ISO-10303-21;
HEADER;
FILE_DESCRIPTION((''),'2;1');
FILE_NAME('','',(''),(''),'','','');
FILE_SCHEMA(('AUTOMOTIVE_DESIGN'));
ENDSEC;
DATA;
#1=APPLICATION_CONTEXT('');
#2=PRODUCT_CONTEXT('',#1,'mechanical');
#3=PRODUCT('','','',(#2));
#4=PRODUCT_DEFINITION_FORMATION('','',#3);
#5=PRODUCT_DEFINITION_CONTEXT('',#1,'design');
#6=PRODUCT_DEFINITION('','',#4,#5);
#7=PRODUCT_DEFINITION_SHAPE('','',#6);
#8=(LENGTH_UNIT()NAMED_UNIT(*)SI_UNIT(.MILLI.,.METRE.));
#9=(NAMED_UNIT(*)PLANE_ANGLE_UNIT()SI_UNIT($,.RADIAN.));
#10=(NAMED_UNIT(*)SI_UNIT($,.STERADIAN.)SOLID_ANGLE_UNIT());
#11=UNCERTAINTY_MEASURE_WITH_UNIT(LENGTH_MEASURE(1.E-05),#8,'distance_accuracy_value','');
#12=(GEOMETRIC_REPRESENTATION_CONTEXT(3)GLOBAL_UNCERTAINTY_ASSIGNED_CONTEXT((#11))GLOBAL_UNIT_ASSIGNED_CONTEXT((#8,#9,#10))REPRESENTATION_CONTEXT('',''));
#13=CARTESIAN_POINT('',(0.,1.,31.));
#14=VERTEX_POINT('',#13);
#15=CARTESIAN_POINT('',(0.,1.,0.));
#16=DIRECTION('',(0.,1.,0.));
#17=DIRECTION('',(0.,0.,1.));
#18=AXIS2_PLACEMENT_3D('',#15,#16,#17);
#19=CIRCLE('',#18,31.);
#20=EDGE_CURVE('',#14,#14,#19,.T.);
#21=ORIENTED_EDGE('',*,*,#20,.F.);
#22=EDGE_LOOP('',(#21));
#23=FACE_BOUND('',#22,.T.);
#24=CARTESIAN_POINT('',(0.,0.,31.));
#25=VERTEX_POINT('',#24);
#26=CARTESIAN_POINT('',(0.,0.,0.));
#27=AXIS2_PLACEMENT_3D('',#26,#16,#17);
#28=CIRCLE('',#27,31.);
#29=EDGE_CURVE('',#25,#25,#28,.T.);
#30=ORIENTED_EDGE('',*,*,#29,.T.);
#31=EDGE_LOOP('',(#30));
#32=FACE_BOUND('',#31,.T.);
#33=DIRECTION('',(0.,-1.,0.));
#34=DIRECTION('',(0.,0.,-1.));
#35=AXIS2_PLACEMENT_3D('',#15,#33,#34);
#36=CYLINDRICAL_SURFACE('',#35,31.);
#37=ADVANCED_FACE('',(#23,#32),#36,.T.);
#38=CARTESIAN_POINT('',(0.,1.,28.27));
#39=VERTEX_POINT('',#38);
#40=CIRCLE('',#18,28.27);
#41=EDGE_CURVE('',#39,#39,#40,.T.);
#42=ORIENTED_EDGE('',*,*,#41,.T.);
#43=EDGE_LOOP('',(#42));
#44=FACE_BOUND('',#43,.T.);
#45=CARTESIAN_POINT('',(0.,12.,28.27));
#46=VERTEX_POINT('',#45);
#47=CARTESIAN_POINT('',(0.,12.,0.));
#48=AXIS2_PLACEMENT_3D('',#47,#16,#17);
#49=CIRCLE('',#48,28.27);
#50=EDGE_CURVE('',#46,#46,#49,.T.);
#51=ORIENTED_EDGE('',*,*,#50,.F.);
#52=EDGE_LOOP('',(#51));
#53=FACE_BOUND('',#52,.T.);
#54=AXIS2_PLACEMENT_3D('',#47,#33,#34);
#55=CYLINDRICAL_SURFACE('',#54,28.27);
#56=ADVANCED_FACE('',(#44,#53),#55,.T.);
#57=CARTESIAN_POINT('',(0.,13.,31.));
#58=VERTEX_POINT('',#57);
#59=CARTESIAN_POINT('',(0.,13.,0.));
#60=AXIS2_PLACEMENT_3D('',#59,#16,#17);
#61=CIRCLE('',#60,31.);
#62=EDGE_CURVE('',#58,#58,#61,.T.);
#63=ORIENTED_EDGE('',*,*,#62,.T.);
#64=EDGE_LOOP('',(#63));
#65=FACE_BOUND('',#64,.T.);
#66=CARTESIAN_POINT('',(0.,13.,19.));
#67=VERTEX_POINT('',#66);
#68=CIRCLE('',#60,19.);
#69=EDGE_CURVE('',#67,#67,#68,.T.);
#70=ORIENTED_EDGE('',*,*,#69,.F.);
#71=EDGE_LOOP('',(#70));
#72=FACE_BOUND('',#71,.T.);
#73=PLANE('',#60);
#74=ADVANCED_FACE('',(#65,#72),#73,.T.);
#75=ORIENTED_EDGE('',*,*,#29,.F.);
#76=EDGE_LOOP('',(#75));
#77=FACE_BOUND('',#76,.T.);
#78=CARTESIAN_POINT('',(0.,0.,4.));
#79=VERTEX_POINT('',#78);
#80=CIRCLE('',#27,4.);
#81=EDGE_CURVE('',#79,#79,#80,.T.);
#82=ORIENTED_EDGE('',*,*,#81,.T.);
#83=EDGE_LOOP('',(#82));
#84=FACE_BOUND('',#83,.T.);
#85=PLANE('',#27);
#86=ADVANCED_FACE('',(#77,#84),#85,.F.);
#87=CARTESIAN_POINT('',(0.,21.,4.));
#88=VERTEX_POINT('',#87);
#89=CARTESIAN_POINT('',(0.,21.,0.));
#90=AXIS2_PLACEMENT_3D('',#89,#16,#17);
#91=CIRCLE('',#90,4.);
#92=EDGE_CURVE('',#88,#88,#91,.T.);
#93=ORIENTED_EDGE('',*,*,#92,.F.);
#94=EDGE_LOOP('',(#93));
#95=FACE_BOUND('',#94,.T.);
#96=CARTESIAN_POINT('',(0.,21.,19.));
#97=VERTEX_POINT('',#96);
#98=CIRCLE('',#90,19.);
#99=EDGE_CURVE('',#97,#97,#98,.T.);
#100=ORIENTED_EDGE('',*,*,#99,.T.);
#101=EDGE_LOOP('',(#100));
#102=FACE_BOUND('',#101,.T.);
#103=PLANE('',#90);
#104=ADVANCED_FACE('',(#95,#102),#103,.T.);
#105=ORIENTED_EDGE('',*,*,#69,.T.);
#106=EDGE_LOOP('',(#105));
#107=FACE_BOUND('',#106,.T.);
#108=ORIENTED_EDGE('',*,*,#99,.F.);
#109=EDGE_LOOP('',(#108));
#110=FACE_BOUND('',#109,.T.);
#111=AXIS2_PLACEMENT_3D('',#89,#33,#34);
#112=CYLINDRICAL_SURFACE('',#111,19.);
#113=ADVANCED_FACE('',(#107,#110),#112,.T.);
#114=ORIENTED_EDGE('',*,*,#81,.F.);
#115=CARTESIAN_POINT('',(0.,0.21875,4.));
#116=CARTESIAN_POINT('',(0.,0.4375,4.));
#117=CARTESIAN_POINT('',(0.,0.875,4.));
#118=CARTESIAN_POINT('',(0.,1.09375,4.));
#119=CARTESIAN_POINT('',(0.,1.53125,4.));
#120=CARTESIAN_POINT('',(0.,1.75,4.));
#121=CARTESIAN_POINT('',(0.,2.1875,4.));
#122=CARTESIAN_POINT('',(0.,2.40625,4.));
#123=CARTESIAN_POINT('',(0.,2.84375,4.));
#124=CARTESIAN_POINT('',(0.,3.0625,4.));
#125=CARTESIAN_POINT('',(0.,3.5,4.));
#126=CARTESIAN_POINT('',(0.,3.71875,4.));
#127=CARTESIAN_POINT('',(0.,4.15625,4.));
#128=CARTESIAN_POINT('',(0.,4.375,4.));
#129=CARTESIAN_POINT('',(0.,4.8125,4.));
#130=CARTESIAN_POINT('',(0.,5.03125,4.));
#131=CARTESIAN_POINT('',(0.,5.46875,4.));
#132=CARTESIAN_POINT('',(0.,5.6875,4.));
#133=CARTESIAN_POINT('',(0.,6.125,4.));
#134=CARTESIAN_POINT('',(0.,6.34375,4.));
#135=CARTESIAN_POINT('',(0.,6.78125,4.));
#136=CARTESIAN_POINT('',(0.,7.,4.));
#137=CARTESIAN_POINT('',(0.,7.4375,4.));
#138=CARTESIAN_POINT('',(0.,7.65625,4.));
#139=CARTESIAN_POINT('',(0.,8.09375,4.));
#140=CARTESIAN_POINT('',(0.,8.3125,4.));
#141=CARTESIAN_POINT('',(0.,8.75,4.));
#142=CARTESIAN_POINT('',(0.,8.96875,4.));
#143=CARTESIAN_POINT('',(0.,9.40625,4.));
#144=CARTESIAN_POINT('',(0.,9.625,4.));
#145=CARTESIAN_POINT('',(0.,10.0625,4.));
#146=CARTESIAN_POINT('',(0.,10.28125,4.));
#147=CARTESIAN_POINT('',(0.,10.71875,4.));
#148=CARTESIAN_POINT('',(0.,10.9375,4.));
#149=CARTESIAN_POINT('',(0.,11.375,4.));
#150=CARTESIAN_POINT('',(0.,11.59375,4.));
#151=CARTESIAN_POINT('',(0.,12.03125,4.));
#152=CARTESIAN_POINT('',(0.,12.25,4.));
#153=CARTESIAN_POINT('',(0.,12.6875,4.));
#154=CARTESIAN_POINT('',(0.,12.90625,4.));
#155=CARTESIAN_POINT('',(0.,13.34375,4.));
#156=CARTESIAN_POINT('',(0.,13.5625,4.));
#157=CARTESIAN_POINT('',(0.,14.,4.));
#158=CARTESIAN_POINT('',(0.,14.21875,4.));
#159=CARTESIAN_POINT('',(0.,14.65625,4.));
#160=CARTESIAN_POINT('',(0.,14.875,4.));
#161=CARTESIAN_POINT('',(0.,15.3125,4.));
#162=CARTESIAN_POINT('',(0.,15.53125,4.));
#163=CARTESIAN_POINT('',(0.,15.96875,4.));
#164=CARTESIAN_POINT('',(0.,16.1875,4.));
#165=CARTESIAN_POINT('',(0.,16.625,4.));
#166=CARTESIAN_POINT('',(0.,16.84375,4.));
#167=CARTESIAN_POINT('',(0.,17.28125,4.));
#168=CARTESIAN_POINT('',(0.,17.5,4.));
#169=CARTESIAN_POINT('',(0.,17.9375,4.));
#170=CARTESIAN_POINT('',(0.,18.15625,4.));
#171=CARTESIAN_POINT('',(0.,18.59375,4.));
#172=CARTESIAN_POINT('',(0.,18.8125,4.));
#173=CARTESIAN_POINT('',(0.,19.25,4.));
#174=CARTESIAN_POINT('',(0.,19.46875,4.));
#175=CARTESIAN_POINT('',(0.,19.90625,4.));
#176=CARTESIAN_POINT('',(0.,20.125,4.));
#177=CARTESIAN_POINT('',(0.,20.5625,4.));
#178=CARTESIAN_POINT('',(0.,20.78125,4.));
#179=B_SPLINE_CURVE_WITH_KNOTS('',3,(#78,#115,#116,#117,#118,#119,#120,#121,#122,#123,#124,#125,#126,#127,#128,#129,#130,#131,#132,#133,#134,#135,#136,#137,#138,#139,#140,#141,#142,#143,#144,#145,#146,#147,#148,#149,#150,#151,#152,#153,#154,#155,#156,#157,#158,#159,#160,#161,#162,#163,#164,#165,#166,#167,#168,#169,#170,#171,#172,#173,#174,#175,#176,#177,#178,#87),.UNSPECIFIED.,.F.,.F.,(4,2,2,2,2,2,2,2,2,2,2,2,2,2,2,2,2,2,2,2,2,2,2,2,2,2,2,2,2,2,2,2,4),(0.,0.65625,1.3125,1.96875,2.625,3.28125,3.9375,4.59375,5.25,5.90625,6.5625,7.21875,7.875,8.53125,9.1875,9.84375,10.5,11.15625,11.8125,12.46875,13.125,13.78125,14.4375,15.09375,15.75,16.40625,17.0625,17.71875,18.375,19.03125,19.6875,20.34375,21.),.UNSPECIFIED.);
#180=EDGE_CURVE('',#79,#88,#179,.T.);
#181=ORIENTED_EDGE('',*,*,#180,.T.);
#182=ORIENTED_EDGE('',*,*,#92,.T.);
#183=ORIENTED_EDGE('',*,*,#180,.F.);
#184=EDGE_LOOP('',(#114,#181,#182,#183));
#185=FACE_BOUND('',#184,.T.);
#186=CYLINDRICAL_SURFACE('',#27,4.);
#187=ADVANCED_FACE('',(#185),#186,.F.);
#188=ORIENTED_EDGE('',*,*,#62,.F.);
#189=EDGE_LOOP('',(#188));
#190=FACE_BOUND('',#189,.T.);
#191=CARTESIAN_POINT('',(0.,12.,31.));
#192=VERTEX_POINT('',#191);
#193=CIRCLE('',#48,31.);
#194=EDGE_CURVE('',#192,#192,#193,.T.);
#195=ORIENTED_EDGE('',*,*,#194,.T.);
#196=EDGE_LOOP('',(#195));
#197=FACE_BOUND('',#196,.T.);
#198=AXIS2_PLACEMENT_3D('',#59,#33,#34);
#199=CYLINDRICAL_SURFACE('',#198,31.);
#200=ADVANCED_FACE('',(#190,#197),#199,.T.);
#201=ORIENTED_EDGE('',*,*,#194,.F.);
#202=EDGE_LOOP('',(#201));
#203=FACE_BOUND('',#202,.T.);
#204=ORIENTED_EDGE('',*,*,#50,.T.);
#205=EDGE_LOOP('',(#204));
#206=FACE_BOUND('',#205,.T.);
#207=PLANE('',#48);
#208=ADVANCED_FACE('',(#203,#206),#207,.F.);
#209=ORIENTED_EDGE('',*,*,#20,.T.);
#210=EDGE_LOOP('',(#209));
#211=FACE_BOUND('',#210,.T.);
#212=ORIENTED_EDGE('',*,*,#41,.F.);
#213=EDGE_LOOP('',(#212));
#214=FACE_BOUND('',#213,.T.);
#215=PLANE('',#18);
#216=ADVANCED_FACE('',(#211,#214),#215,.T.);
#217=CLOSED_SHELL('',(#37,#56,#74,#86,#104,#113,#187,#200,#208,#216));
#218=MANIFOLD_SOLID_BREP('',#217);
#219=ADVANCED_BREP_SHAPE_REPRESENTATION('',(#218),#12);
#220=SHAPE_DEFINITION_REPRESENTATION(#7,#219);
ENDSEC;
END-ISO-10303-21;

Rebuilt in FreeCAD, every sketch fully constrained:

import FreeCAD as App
import Part
import Sketcher
from FreeCAD import Vector
Q = App.Units.Quantity

doc = App.newDocument("Part")
body = doc.addObject("PartDesign::Body", "Body")

# Sketch on XZ plane
sketch1 = body.newObject("Sketcher::SketchObject", "Sketch")
sketch1.AttachmentSupport = (doc.getObject("XZ_Plane"), [""])
sketch1.MapMode = "FlatFace"
sketch1.addGeometry(Part.Circle(Vector(0, 0, 0), Vector(0, 0, 1), 31), False)
sketch1.addConstraint([
    Sketcher.Constraint("Coincident", 0, 3, -1, 1),
    Sketcher.Constraint("Diameter", 0, Q("62 mm")),
])
pad1 = body.newObject("PartDesign::Pad", "Pad")
pad1.Profile = sketch1
pad1.Length = 1
pad1.Reversed = True

# Sketch on XZ plane
sketch2 = body.newObject("Sketcher::SketchObject", "Sketch001")
sketch2.AttachmentSupport = (doc.getObject("XZ_Plane"), [""])
sketch2.MapMode = "FlatFace"
sketch2.AttachmentOffset = App.Placement(Vector(0, 0, -1), App.Rotation())
sketch2.addGeometry(Part.Circle(Vector(0, 0, 0), Vector(0, 0, 1), 28), False)
sketch2.addConstraint([
    Sketcher.Constraint("Coincident", 0, 3, -1, 1),
    Sketcher.Constraint("Diameter", 0, Q("56.54 mm")),
])
pad2 = body.newObject("PartDesign::Pad", "Pad001")
pad2.Profile = sketch2
pad2.Length = 11
pad2.Reversed = True

# Sketch on XZ plane
sketch3 = body.newObject("Sketcher::SketchObject", "Sketch002")
sketch3.AttachmentSupport = (doc.getObject("XZ_Plane"), [""])
sketch3.MapMode = "FlatFace"
sketch3.AttachmentOffset = App.Placement(Vector(0, 0, -12), App.Rotation())
sketch3.addGeometry(Part.Circle(Vector(0, 0, 0), Vector(0, 0, 1), 31), False)
sketch3.addConstraint([
    Sketcher.Constraint("Coincident", 0, 3, -1, 1),
    Sketcher.Constraint("Diameter", 0, Q("62 mm")),
])
pad3 = body.newObject("PartDesign::Pad", "Pad002")
pad3.Profile = sketch3
pad3.Length = 1
pad3.Reversed = True

# Sketch on XZ plane
sketch4 = body.newObject("Sketcher::SketchObject", "Sketch003")
sketch4.AttachmentSupport = (doc.getObject("XZ_Plane"), [""])
sketch4.MapMode = "FlatFace"
sketch4.AttachmentOffset = App.Placement(Vector(0, 0, -13), App.Rotation())
sketch4.addGeometry(Part.Circle(Vector(0, 0, 0), Vector(0, 0, 1), 19), False)
sketch4.addConstraint([
    Sketcher.Constraint("Coincident", 0, 3, -1, 1),
    Sketcher.Constraint("Diameter", 0, Q("38 mm")),
])
pad4 = body.newObject("PartDesign::Pad", "Pad003")
pad4.Profile = sketch4
pad4.Length = 8
pad4.Reversed = True

# Sketch on XZ plane
sketch5 = body.newObject("Sketcher::SketchObject", "Sketch004")
sketch5.AttachmentSupport = (doc.getObject("XZ_Plane"), [""])
sketch5.MapMode = "FlatFace"
sketch5.AttachmentOffset = App.Placement(Vector(0, 0, -21), App.Rotation())
sketch5.addGeometry(Part.Circle(Vector(0, 0, 0), Vector(0, 0, 1), 4), False)
sketch5.addConstraint([
    Sketcher.Constraint("Coincident", 0, 3, -1, 1),
    Sketcher.Constraint("Diameter", 0, Q("8 mm")),
])
pocket1 = body.newObject("PartDesign::Pocket", "Pocket")
pocket1.Profile = sketch5
pocket1.Type = "ThroughAll"
pocket1.Reversed = True

doc.recompute()
